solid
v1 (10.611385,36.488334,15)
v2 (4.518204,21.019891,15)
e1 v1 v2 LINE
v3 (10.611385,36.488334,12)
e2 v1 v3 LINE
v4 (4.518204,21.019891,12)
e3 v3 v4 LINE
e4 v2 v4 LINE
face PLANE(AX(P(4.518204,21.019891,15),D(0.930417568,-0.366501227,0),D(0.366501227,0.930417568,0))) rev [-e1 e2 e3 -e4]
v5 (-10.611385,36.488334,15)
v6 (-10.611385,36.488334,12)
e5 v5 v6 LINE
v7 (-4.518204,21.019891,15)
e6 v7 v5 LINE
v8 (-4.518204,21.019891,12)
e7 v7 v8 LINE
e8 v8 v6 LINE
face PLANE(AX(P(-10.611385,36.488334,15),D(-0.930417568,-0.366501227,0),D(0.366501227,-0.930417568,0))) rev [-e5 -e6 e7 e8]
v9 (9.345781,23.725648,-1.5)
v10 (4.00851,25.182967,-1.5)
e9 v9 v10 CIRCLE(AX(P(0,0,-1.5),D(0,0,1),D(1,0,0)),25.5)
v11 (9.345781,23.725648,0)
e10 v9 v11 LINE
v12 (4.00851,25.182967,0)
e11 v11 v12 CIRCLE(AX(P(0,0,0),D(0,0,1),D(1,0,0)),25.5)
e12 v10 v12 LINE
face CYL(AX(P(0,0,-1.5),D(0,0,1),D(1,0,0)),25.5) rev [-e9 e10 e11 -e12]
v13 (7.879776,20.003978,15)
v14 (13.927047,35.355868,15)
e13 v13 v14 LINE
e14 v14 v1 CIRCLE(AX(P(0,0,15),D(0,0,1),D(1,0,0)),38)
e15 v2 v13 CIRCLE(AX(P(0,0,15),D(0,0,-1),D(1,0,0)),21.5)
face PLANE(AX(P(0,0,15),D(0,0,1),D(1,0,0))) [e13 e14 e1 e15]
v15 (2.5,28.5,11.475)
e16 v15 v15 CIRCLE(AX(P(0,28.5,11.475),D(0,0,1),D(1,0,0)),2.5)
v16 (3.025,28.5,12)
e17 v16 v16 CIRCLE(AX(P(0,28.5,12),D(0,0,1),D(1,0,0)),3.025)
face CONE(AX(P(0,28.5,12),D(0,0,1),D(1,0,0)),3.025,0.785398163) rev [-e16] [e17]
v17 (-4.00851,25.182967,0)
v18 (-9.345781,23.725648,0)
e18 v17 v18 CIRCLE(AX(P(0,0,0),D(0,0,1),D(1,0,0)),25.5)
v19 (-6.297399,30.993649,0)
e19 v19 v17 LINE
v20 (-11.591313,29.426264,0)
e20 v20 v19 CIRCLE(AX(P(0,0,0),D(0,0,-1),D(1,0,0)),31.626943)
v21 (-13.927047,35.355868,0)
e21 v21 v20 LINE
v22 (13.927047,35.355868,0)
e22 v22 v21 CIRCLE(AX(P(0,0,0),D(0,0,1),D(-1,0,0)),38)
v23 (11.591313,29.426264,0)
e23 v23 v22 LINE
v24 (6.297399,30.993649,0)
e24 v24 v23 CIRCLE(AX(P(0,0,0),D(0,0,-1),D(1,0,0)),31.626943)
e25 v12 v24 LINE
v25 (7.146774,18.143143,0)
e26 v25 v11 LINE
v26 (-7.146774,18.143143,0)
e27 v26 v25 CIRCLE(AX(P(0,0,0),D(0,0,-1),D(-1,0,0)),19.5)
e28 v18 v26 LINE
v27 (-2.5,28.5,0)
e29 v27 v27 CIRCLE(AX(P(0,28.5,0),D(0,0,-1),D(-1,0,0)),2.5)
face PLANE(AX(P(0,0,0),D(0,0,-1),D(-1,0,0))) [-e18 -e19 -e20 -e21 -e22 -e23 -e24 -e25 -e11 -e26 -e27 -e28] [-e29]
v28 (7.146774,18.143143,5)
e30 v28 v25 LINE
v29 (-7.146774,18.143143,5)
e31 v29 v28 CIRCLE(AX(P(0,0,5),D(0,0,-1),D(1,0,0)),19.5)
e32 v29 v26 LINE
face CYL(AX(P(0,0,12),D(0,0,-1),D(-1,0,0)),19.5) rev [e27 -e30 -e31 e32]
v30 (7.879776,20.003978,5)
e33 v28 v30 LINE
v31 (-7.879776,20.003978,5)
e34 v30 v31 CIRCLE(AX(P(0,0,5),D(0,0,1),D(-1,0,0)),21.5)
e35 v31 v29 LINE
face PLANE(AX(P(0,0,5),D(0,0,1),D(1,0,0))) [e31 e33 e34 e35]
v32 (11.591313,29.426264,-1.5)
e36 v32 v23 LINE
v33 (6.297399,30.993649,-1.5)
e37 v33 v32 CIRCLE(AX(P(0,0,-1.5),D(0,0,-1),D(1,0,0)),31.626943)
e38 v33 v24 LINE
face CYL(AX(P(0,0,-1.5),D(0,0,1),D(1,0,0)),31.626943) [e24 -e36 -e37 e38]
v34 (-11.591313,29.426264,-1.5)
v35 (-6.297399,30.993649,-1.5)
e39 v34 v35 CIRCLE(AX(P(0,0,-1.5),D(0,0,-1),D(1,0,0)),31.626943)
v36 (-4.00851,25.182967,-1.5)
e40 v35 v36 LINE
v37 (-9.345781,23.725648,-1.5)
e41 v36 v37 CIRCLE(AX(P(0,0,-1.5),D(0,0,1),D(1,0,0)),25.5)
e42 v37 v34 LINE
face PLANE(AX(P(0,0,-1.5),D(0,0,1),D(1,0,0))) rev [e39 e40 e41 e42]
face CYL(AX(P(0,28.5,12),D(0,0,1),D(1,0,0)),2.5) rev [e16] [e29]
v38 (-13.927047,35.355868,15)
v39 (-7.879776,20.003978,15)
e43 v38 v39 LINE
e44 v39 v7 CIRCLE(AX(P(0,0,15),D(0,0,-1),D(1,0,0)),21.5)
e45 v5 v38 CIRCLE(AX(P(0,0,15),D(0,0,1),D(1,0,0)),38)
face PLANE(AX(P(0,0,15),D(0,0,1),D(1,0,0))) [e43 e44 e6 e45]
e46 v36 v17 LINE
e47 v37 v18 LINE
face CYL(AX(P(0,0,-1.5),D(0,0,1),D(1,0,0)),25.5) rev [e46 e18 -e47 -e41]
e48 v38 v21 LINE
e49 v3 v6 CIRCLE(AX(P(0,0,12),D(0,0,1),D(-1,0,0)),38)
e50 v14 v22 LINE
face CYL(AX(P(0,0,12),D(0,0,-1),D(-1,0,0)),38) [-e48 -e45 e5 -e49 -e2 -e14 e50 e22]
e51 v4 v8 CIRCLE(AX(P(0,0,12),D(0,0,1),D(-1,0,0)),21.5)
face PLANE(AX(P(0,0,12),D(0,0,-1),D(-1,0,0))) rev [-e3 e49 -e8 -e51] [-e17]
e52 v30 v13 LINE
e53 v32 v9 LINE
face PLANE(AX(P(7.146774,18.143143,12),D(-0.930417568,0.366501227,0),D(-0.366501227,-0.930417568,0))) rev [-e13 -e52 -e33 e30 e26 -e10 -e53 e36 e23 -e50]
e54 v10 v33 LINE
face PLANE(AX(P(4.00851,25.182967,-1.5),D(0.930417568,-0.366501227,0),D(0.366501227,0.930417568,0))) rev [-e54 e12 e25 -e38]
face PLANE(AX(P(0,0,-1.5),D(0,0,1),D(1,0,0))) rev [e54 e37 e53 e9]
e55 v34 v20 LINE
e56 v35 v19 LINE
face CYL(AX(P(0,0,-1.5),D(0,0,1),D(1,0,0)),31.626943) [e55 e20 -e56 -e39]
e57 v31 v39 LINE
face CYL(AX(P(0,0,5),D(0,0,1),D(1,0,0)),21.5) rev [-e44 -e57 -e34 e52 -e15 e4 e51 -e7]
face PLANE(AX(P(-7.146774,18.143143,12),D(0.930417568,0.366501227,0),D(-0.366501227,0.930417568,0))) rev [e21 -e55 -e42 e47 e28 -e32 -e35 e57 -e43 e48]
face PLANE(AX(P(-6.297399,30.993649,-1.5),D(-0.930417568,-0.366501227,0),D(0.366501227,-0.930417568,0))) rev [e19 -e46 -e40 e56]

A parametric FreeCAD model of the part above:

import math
import FreeCAD as App
import Part
import Sketcher
Q = App.Units.Quantity

doc = App.newDocument("Part")
params = doc.addObject("Spreadsheet::Sheet", "Params")
for row, (alias, value) in enumerate([
    ("sketch1_radius", "38 mm"),
    ("sketch1_radius2", "19.5 mm"),
    ("pad1_length", "12 mm"),
    ("sketch2_radius", "19.5 mm"),
    ("sketch2_radius2", "21.5 mm"),
    ("pocket1_length", "7 mm"),
    ("sketch3_radius", "38 mm"),
    ("sketch3_radius2", "21.5 mm"),
    ("pad2_length", "3 mm"),
    ("sketch4_radius", "25.5 mm"),
    ("pad3_length", "1.5 mm"),
    ("sketch5_diameter", "5 mm"),
    ("hole_diameter", "5 mm"),
    ("hole_csink_diameter", "6.05 mm"),
], start=1):
    params.set(f"A{row}", alias)
    params.set(f"B{row}", "=" + value)
    params.setAlias(f"B{row}", alias)

body = doc.addObject("PartDesign::Body", "Body")

# Sketch on XY plane
sketch1 = body.newObject("Sketcher::SketchObject", "Sketch")
sketch1.AttachmentSupport = (doc.getObject("XY_Plane"), [""])
sketch1.MapMode = "FlatFace"
sketch1.addGeometry(Part.LineSegment(App.Vector(-13.927047, 35.355868, 0), App.Vector(-7.146774, 18.143143, 0)), False)
sketch1.addGeometry(Part.ArcOfCircle(Part.Circle(App.Vector(0, 0, 0), App.Vector(0, 0, 1), 19.5), math.radians(68.5), math.radians(111.5)), False)
sketch1.addGeometry(Part.LineSegment(App.Vector(7.146774, 18.143143, 0), App.Vector(13.927047, 35.355868, 0)), False)
sketch1.addGeometry(Part.ArcOfCircle(Part.Circle(App.Vector(0, 0, 0), App.Vector(0, 0, 1), 38), math.radians(68.5), math.radians(111.5)), False)
sketch1.addConstraint(Sketcher.Constraint("Coincident", 0, 2, 1, 2))
sketch1.addConstraint(Sketcher.Constraint("Coincident", 1, 1, 2, 1))
sketch1.addConstraint(Sketcher.Constraint("Coincident", 2, 2, 3, 1))
sketch1.addConstraint(Sketcher.Constraint("Coincident", 3, 2, 0, 1))
sketch1.addConstraint(Sketcher.Constraint("Coincident", 1, 3, -1, 1))
sketch1.addConstraint(Sketcher.Constraint("Coincident", 3, 3, -1, 1))
sketch1.addConstraint(Sketcher.Constraint("Horizontal", 0, 2, 1, 1))
sketch1.addConstraint(Sketcher.Constraint("Horizontal", 2, 2, 3, 2))
sketch1.addConstraint(Sketcher.Constraint("Radius", 3, 38.0))
sketch1.addConstraint(Sketcher.Constraint("Radius", 1, 19.5))
sketch1.addConstraint(Sketcher.Constraint("Angle", 0, Q("-68.5 deg")))
sketch1.addConstraint(Sketcher.Constraint("DistanceX", 0, 2, 2, 2, 21.073821))
sketch1.setExpression("Constraints[8]", "Params.sketch1_radius")
sketch1.setExpression("Constraints[9]", "Params.sketch1_radius2")
pad1 = body.newObject("PartDesign::Pad", "Pad")
pad1.Profile = sketch1
pad1.setExpression("Length", "Params.pad1_length")

# Sketch on XY plane
sketch2 = body.newObject("Sketcher::SketchObject", "Sketch001")
sketch2.AttachmentSupport = (doc.getObject("XY_Plane"), [""])
sketch2.MapMode = "FlatFace"
sketch2.AttachmentOffset = App.Placement(App.Vector(0, 0, 5), App.Rotation())
sketch2.addGeometry(Part.LineSegment(App.Vector(-7.879776, 20.003978, 0), App.Vector(-7.146774, 18.143143, 0)), False)
sketch2.addGeometry(Part.ArcOfCircle(Part.Circle(App.Vector(0, 0, 0), App.Vector(0, 0, 1), 19.5), math.radians(68.5), math.radians(111.5)), False)
sketch2.addGeometry(Part.LineSegment(App.Vector(7.146774, 18.143143, 0), App.Vector(7.879776, 20.003978, 0)), False)
sketch2.addGeometry(Part.ArcOfCircle(Part.Circle(App.Vector(0, 0, 0), App.Vector(0, 0, 1), 21.5), math.radians(68.5), math.radians(111.5)), False)
sketch2.addConstraint(Sketcher.Constraint("Coincident", 0, 2, 1, 2))
sketch2.addConstraint(Sketcher.Constraint("Coincident", 1, 1, 2, 1))
sketch2.addConstraint(Sketcher.Constraint("Coincident", 2, 2, 3, 1))
sketch2.addConstraint(Sketcher.Constraint("Coincident", 3, 2, 0, 1))
sketch2.addConstraint(Sketcher.Constraint("Coincident", 1, 3, -1, 1))
sketch2.addConstraint(Sketcher.Constraint("Coincident", 3, 3, -1, 1))
sketch2.addConstraint(Sketcher.Constraint("Horizontal", 0, 2, 1, 1))
sketch2.addConstraint(Sketcher.Constraint("Horizontal", 2, 2, 3, 2))
sketch2.addConstraint(Sketcher.Constraint("Radius", 1, 19.5))
sketch2.addConstraint(Sketcher.Constraint("Radius", 3, 21.5))
sketch2.addConstraint(Sketcher.Constraint("Angle", 0, Q("-68.5 deg")))
sketch2.addConstraint(Sketcher.Constraint("DistanceX", 0, 2, 2, 2, 15.02655))
sketch2.setExpression("Constraints[8]", "Params.sketch2_radius")
sketch2.setExpression("Constraints[9]", "Params.sketch2_radius2")
pocket1 = body.newObject("PartDesign::Pocket", "Pocket")
pocket1.Profile = sketch2
pocket1.setExpression("Length", "Params.pocket1_length")
pocket1.Reversed = True

# Sketch on XY plane
sketch3 = body.newObject("Sketcher::SketchObject", "Sketch002")
sketch3.AttachmentSupport = (doc.getObject("XY_Plane"), [""])
sketch3.MapMode = "FlatFace"
sketch3.AttachmentOffset = App.Placement(App.Vector(0, 0, 12), App.Rotation())
sketch3.addGeometry(Part.LineSegment(App.Vector(-13.927047, 35.355868, 0), App.Vector(-7.879776, 20.003978, 0)), False)
sketch3.addGeometry(Part.ArcOfCircle(Part.Circle(App.Vector(0, 0, 0), App.Vector(0, 0, 1), 21.5), math.radians(102.131084), math.radians(111.5)), False)
sketch3.addGeometry(Part.LineSegment(App.Vector(-4.518204, 21.019891, 0), App.Vector(-10.611385, 36.488334, 0)), False)
sketch3.addGeometry(Part.ArcOfCircle(Part.Circle(App.Vector(0, 0, 0), App.Vector(0, 0, 1), 38), math.radians(106.215267), math.radians(111.5)), False)
sketch3.addGeometry(Part.LineSegment(App.Vector(7.879776, 20.003978, 0), App.Vector(13.927047, 35.355868, 0)), False)
sketch3.addGeometry(Part.ArcOfCircle(Part.Circle(App.Vector(0, 0, 0), App.Vector(0, 0, 1), 38), math.radians(68.5), math.radians(73.784733)), False)
sketch3.addGeometry(Part.LineSegment(App.Vector(10.611385, 36.488334, 0), App.Vector(4.518204, 21.019891, 0)), False)
sketch3.addGeometry(Part.ArcOfCircle(Part.Circle(App.Vector(0, 0, 0), App.Vector(0, 0, 1), 21.5), math.radians(68.5), math.radians(77.868916)), False)
sketch3.addConstraint(Sketcher.Constraint("Coincident", 0, 2, 1, 2))
sketch3.addConstraint(Sketcher.Constraint("Coincident", 1, 1, 2, 1))
sketch3.addConstraint(Sketcher.Constraint("Coincident", 2, 2, 3, 1))
sketch3.addConstraint(Sketcher.Constraint("Coincident", 3, 2, 0, 1))
sketch3.addConstraint(Sketcher.Constraint("Coincident", 4, 2, 5, 1))
sketch3.addConstraint(Sketcher.Constraint("Coincident", 5, 2, 6, 1))
sketch3.addConstraint(Sketcher.Constraint("Coincident", 6, 2, 7, 2))
sketch3.addConstraint(Sketcher.Constraint("Coincident", 7, 1, 4, 1))
sketch3.addConstraint(Sketcher.Constraint("Coincident", 1, 3, -1, 1))
sketch3.addConstraint(Sketcher.Constraint("Coincident", 3, 3, -1, 1))
sketch3.addConstraint(Sketcher.Constraint("Coincident", 5, 3, -1, 1))
sketch3.addConstraint(Sketcher.Constraint("Coincident", 7, 3, -1, 1))
sketch3.addConstraint(Sketcher.Constraint("Equal", 3, 5))
sketch3.addConstraint(Sketcher.Constraint("Equal", 1, 7))
sketch3.addConstraint(Sketcher.Constraint("Parallel", 0, 2))
sketch3.addConstraint(Sketcher.Constraint("Parallel", 4, 6))
sketch3.addConstraint(Sketcher.Constraint("Horizontal", 3, 2, 4, 2))
sketch3.addConstraint(Sketcher.Constraint("Horizontal", 2, 2, 5, 2))
sketch3.addConstraint(Sketcher.Constraint("Horizontal", 1, 1, 6, 2))
sketch3.addConstraint(Sketcher.Constraint("Radius", 3, 38.0))
sketch3.addConstraint(Sketcher.Constraint("Radius", 1, 21.5))
sketch3.addConstraint(Sketcher.Constraint("Angle", 0, Q("-68.5 deg")))
sketch3.addConstraint(Sketcher.Constraint("Distance", 2, 16.625269))
sketch3.addConstraint(Sketcher.Constraint("DistanceX", 2, 2, 0, 2, 2.731609))
sketch3.setExpression("Constraints[19]", "Params.sketch3_radius")
sketch3.setExpression("Constraints[20]", "Params.sketch3_radius2")
pad2 = body.newObject("PartDesign::Pad", "Pad001")
pad2.Profile = sketch3
pad2.setExpression("Length", "Params.pad2_length")

# Sketch on XY plane
sketch4 = body.newObject("Sketcher::SketchObject", "Sketch003")
sketch4.AttachmentSupport = (doc.getObject("XY_Plane"), [""])
sketch4.MapMode = "FlatFace"
sketch4.addGeometry(Part.LineSegment(App.Vector(-9.345781, 23.725648, 0), App.Vector(-11.591313, 29.426264, 0)), False)
sketch4.addGeometry(Part.ArcOfCircle(Part.Circle(App.Vector(0, 0, 0), App.Vector(0, 0, 1), 31.626943), math.radians(101.485212), math.radians(111.5)), False)
sketch4.addGeometry(Part.LineSegment(App.Vector(-6.297399, 30.993649, 0), App.Vector(-4.00851, 25.182967, 0)), False)
sketch4.addGeometry(Part.ArcOfCircle(Part.Circle(App.Vector(0, 0, 0), App.Vector(0, 0, 1), 25.5), math.radians(99.044207), math.radians(111.5)), False)
sketch4.addGeometry(Part.LineSegment(App.Vector(11.591313, 29.426264, 0), App.Vector(9.345781, 23.725648, 0)), False)
sketch4.addGeometry(Part.ArcOfCircle(Part.Circle(App.Vector(0, 0, 0), App.Vector(0, 0, 1), 25.5), math.radians(68.5), math.radians(80.955793)), False)
sketch4.addGeometry(Part.LineSegment(App.Vector(4.00851, 25.182967, 0), App.Vector(6.297399, 30.993649, 0)), False)
sketch4.addGeometry(Part.ArcOfCircle(Part.Circle(App.Vector(0, 0, 0), App.Vector(0, 0, 1), 31.626943), math.radians(68.5), math.radians(78.514788)), False)
sketch4.addConstraint(Sketcher.Constraint("Coincident", 0, 2, 1, 2))
sketch4.addConstraint(Sketcher.Constraint("Coincident", 1, 1, 2, 1))
sketch4.addConstraint(Sketcher.Constraint("Coincident", 2, 2, 3, 1))
sketch4.addConstraint(Sketcher.Constraint("Coincident", 3, 2, 0, 1))
sketch4.addConstraint(Sketcher.Constraint("Coincident", 4, 2, 5, 1))
sketch4.addConstraint(Sketcher.Constraint("Coincident", 5, 2, 6, 1))
sketch4.addConstraint(Sketcher.Constraint("Coincident", 6, 2, 7, 2))
sketch4.addConstraint(Sketcher.Constraint("Coincident", 7, 1, 4, 1))
sketch4.addConstraint(Sketcher.Constraint("Coincident", 1, 3, -1, 1))
sketch4.addConstraint(Sketcher.Constraint("Coincident", 3, 3, -1, 1))
sketch4.addConstraint(Sketcher.Constraint("Coincident", 5, 3, -1, 1))
sketch4.addConstraint(Sketcher.Constraint("Coincident", 7, 3, -1, 1))
sketch4.addConstraint(Sketcher.Constraint("Equal", 3, 5))
sketch4.addConstraint(Sketcher.Constraint("Equal", 1, 7))
sketch4.addConstraint(Sketcher.Constraint("Parallel", 0, 2))
sketch4.addConstraint(Sketcher.Constraint("Parallel", 4, 6))
sketch4.addConstraint(Sketcher.Constraint("Horizontal", 3, 2, 4, 2))
sketch4.addConstraint(Sketcher.Constraint("Horizontal", 2, 2, 5, 2))
sketch4.addConstraint(Sketcher.Constraint("Horizontal", 1, 1, 6, 2))
sketch4.addConstraint(Sketcher.Constraint("Radius", 3, 25.5))
sketch4.addConstraint(Sketcher.Constraint("Angle", 0, Q("111.5 deg")))
sketch4.addConstraint(Sketcher.Constraint("Radius", 1, 31.626943))
sketch4.addConstraint(Sketcher.Constraint("DistanceY", 3, 2, 1, 1, 7.268001))
sketch4.addConstraint(Sketcher.Constraint("DistanceX", 1, 1, -1, 1, 6.297399))
sketch4.setExpression("Constraints[19]", "Params.sketch4_radius")
pad3 = body.newObject("PartDesign::Pad", "Pad002")
pad3.Profile = sketch4
pad3.setExpression("Length", "Params.pad3_length")
pad3.Reversed = True

# Sketch on XY plane
sketch5 = body.newObject("Sketcher::SketchObject", "Sketch004")
sketch5.AttachmentSupport = (doc.getObject("XY_Plane"), [""])
sketch5.MapMode = "FlatFace"
sketch5.AttachmentOffset = App.Placement(App.Vector(0, 0, 12), App.Rotation())
sketch5.addGeometry(Part.Circle(App.Vector(0, 28.5, 0), App.Vector(0, 0, 1), 2.5), False)
sketch5.addConstraint(Sketcher.Constraint("PointOnObject", 0, 3, -2))
sketch5.addConstraint(Sketcher.Constraint("Diameter", 0, 5.0))
sketch5.addConstraint(Sketcher.Constraint("DistanceY", -1, 1, 0, 3, 28.5))
sketch5.setExpression("Constraints[1]", "Params.sketch5_diameter")
doc.recompute()
hole = body.newObject("PartDesign::Hole", "Hole")
hole.Profile = sketch5
hole.ThreadType = "None"
hole.setExpression("Diameter", "Params.hole_diameter")
hole.DepthType = "ThroughAll"
hole.HoleCutType = "Countersink"
hole.setExpression("HoleCutDiameter", "Params.hole_csink_diameter")
hole.HoleCutCountersinkAngle = 90

doc.recompute()
